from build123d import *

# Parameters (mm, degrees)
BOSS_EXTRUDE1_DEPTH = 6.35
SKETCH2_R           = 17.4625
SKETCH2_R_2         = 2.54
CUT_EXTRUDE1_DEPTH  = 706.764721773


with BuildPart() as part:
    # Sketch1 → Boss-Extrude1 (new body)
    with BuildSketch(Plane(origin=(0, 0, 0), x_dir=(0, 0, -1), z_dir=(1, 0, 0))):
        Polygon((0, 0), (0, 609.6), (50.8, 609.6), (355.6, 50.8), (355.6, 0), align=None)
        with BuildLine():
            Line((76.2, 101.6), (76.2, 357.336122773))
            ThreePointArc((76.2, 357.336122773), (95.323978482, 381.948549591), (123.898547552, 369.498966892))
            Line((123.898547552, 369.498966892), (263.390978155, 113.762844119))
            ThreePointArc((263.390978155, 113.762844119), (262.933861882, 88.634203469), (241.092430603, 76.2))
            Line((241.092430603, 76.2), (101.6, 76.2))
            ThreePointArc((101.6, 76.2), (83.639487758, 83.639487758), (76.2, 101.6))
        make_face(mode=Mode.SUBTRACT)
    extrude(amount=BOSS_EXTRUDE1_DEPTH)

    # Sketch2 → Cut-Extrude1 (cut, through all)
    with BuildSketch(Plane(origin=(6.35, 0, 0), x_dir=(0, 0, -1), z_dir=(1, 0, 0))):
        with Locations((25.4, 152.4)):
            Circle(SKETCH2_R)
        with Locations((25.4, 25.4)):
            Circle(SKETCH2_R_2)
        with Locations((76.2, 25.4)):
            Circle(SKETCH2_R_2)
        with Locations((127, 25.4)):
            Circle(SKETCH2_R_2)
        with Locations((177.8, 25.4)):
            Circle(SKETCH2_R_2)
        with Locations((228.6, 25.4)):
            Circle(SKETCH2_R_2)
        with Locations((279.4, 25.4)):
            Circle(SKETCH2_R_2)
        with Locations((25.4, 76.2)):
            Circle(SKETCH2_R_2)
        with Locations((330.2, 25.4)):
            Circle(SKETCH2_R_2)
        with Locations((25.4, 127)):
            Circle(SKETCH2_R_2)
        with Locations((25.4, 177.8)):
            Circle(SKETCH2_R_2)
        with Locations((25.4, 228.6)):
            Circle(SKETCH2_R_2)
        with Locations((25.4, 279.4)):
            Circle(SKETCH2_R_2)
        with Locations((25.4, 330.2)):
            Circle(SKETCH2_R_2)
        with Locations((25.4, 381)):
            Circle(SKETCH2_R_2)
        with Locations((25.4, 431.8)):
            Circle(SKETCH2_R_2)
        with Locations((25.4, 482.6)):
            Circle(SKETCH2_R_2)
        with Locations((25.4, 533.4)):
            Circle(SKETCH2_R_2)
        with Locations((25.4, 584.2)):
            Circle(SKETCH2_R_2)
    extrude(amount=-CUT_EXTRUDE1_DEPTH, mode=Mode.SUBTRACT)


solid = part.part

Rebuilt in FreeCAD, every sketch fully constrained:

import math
import FreeCAD as App
import Part
import Sketcher

V = App.Vector
Q = App.Units.Quantity

doc = App.newDocument("Part")
body = doc.addObject("PartDesign::Body", "Body")

# Sketch on YZ plane
sketch1 = doc.addObject("Sketcher::SketchObject", "Sketch")
body.addObject(sketch1)
sketch1.AttachmentSupport = (doc.YZ_Plane, [""])
sketch1.MapMode = "FlatFace"
sketch1.addGeometry([
    Part.LineSegment(V(610, 0, 0), V(0, 0, 0)),  # 0
    Part.LineSegment(V(0, 0, 0), V(0, -356, 0)),  # 1
    Part.LineSegment(V(0, -356, 0), V(51, -356, 0)),  # 2
    Part.LineSegment(V(51, -356, 0), V(610, -51, 0)),  # 3
    Part.LineSegment(V(610, -51, 0), V(610, 0, 0)),  # 4
    Part.LineSegment(V(102, -76, 0), V(357, -76, 0)),  # 5
    Part.ArcOfCircle(Part.Circle(V(357, -102, 0), V(0, 0, 1), 25), math.radians(-61), math.radians(90)),  # 6
    Part.LineSegment(V(369, -124, 0), V(114, -263, 0)),  # 7
    Part.ArcOfCircle(Part.Circle(V(102, -241, 0), V(0, 0, 1), 25), math.radians(180), math.radians(299)),  # 8
    Part.LineSegment(V(76, -241, 0), V(76, -102, 0)),  # 9
    Part.ArcOfCircle(Part.Circle(V(102, -102, 0), V(0, 0, 1), 25), math.radians(90), math.radians(180)),  # 10
], False)
sketch1.addConstraint([
    Sketcher.Constraint("Coincident", 0, 2, 1, 1),
    Sketcher.Constraint("Coincident", 1, 2, 2, 1),
    Sketcher.Constraint("Coincident", 2, 2, 3, 1),
    Sketcher.Constraint("Coincident", 3, 2, 4, 1),
    Sketcher.Constraint("Coincident", 4, 2, 0, 1),
    Sketcher.Constraint("Tangent", 5, 2, 6, 2),
    Sketcher.Constraint("Tangent", 6, 1, 7, 1),
    Sketcher.Constraint("Tangent", 7, 2, 8, 2),
    Sketcher.Constraint("Tangent", 8, 1, 9, 1),
    Sketcher.Constraint("Tangent", 9, 2, 10, 2),
    Sketcher.Constraint("Tangent", 10, 1, 5, 1),
    Sketcher.Constraint("Horizontal", 0),
    Sketcher.Constraint("Vertical", 1),
    Sketcher.Constraint("Horizontal", 2),
    Sketcher.Constraint("Vertical", 4),
    Sketcher.Constraint("Horizontal", 5),
    Sketcher.Constraint("Vertical", 9),
    Sketcher.Constraint("Coincident", 0, 2, -1, 1),
    Sketcher.Constraint("Equal", 6, 8),
    Sketcher.Constraint("Equal", 8, 10),
    Sketcher.Constraint("Parallel", 3, 7),
    Sketcher.Constraint("Equal", 2, 4),
    Sketcher.Constraint("Radius", 6, Q("1 in")),
    Sketcher.Constraint("DistanceX", 0, 2, 0, 1, Q("24 in")),
    Sketcher.Constraint("DistanceX", 2, 1, 2, 2, Q("2 in")),
    Sketcher.Constraint("DistanceY", 1, 2, 1, 1, Q("14 in")),
    Sketcher.Constraint("DistanceY", 6, 3, -1, 1, Q("4 in")),
    Sketcher.Constraint("DistanceX", -1, 1, 8, 3, Q("4 in")),
    Sketcher.Constraint("DistanceY", 9, 1, 9, 2, Q("139.492431 mm")),
])
pad1 = doc.addObject("PartDesign::Pad", "Pad")
body.addObject(pad1)
pad1.Profile = sketch1
pad1.Length = Q("0.25 in")

# Sketch on YZ plane
sketch2 = doc.addObject("Sketcher::SketchObject", "Sketch001")
body.addObject(sketch2)
sketch2.AttachmentSupport = (doc.YZ_Plane, [""])
sketch2.MapMode = "FlatFace"
sketch2.AttachmentOffset = App.Placement(V(0, 0, 0.25 * 25.4), App.Rotation())
sketch2.addGeometry([
    Part.Circle(V(152.4, -25.4, 0), V(0, 0, 1), 17.5),  # 0
    Part.Circle(V(25.4, -25.4, 0), V(0, 0, 1), 2.5),  # 1
    Part.Circle(V(25.4, -76.2, 0), V(0, 0, 1), 2.5),  # 2
    Part.Circle(V(25.4, -127, 0), V(0, 0, 1), 2.5),  # 3
    Part.Circle(V(25.4, -177.8, 0), V(0, 0, 1), 2.5),  # 4
    Part.Circle(V(25.4, -228.6, 0), V(0, 0, 1), 2.5),  # 5
    Part.Circle(V(25.4, -279.4, 0), V(0, 0, 1), 2.5),  # 6
    Part.Circle(V(76.2, -25.4, 0), V(0, 0, 1), 2.5),  # 7
    Part.Circle(V(25.4, -330.2, 0), V(0, 0, 1), 2.5),  # 8
    Part.Circle(V(127, -25.4, 0), V(0, 0, 1), 2.5),  # 9
    Part.Circle(V(177.8, -25.4, 0), V(0, 0, 1), 2.5),  # 10
    Part.Circle(V(228.6, -25.4, 0), V(0, 0, 1), 2.5),  # 11
    Part.Circle(V(279.4, -25.4, 0), V(0, 0, 1), 2.5),  # 12
    Part.Circle(V(330.2, -25.4, 0), V(0, 0, 1), 2.5),  # 13
    Part.Circle(V(381, -25.4, 0), V(0, 0, 1), 2.5),  # 14
    Part.Circle(V(431.8, -25.4, 0), V(0, 0, 1), 2.5),  # 15
    Part.Circle(V(482.6, -25.4, 0), V(0, 0, 1), 2.5),  # 16
    Part.Circle(V(533.4, -25.4, 0), V(0, 0, 1), 2.5),  # 17
    Part.Circle(V(584.2, -25.4, 0), V(0, 0, 1), 2.5),  # 18
], False)
sketch2.addConstraint([
    Sketcher.Constraint("Equal", 1, 2),
    Sketcher.Constraint("Equal", 2, 3),
    Sketcher.Constraint("Equal", 3, 4),
    Sketcher.Constraint("Equal", 4, 5),
    Sketcher.Constraint("Equal", 5, 6),
    Sketcher.Constraint("Equal", 6, 7),
    Sketcher.Constraint("Equal", 7, 8),
    Sketcher.Constraint("Equal", 8, 9),
    Sketcher.Constraint("Equal", 9, 10),
    Sketcher.Constraint("Equal", 10, 11),
    Sketcher.Constraint("Equal", 11, 12),
    Sketcher.Constraint("Equal", 12, 13),
    Sketcher.Constraint("Equal", 13, 14),
    Sketcher.Constraint("Equal", 14, 15),
    Sketcher.Constraint("Equal", 15, 16),
    Sketcher.Constraint("Equal", 16, 17),
    Sketcher.Constraint("Equal", 17, 18),
    Sketcher.Constraint("Horizontal", 0, 3, 1, 3),
    Sketcher.Constraint("Horizontal", 1, 3, 7, 3),
    Sketcher.Constraint("Horizontal", 7, 3, 9, 3),
    Sketcher.Constraint("Horizontal", 9, 3, 10, 3),
    Sketcher.Constraint("Horizontal", 10, 3, 11, 3),
    Sketcher.Constraint("Horizontal", 11, 3, 12, 3),
    Sketcher.Constraint("Horizontal", 12, 3, 13, 3),
    Sketcher.Constraint("Horizontal", 13, 3, 14, 3),
    Sketcher.Constraint("Horizontal", 14, 3, 15, 3),
    Sketcher.Constraint("Horizontal", 15, 3, 16, 3),
    Sketcher.Constraint("Horizontal", 16, 3, 17, 3),
    Sketcher.Constraint("Horizontal", 17, 3, 18, 3),
    Sketcher.Constraint("Vertical", 1, 3, 2, 3),
    Sketcher.Constraint("Vertical", 2, 3, 3, 3),
    Sketcher.Constraint("Vertical", 3, 3, 4, 3),
    Sketcher.Constraint("Vertical", 4, 3, 5, 3),
    Sketcher.Constraint("Vertical", 5, 3, 6, 3),
    Sketcher.Constraint("Vertical", 6, 3, 8, 3),
    Sketcher.Constraint("Diameter", 1, Q("0.2 in")),
    Sketcher.Constraint("Diameter", 0, Q("1.375 in")),
    Sketcher.Constraint("DistanceX", -1, 1, 0, 3, Q("6 in")),
    Sketcher.Constraint("DistanceY", 0, 3, -1, 1, Q("1 in")),
    Sketcher.Constraint("DistanceX", -1, 1, 1, 3, Q("1 in")),
    Sketcher.Constraint("DistanceY", 2, 3, -1, 1, Q("3 in")),
    Sketcher.Constraint("DistanceY", 3, 3, -1, 1, Q("5 in")),
    Sketcher.Constraint("DistanceY", 4, 3, -1, 1, Q("7 in")),
    Sketcher.Constraint("DistanceY", 5, 3, -1, 1, Q("9 in")),
    Sketcher.Constraint("DistanceY", 6, 3, -1, 1, Q("11 in")),
    Sketcher.Constraint("DistanceX", -1, 1, 7, 3, Q("3 in")),
    Sketcher.Constraint("DistanceY", 8, 3, -1, 1, Q("13 in")),
    Sketcher.Constraint("DistanceX", -1, 1, 9, 3, Q("5 in")),
    Sketcher.Constraint("DistanceX", -1, 1, 10, 3, Q("7 in")),
    Sketcher.Constraint("DistanceX", -1, 1, 11, 3, Q("9 in")),
    Sketcher.Constraint("DistanceX", -1, 1, 12, 3, Q("11 in")),
    Sketcher.Constraint("DistanceX", -1, 1, 13, 3, Q("13 in")),
    Sketcher.Constraint("DistanceX", -1, 1, 14, 3, Q("15 in")),
    Sketcher.Constraint("DistanceX", -1, 1, 15, 3, Q("17 in")),
    Sketcher.Constraint("DistanceX", -1, 1, 16, 3, Q("19 in")),
    Sketcher.Constraint("DistanceX", -1, 1, 17, 3, Q("21 in")),
    Sketcher.Constraint("DistanceX", -1, 1, 18, 3, Q("23 in")),
])
pocket1 = doc.addObject("PartDesign::Pocket", "Pocket")
body.addObject(pocket1)
pocket1.Profile = sketch2
pocket1.Type = "ThroughAll"

doc.recompute()
